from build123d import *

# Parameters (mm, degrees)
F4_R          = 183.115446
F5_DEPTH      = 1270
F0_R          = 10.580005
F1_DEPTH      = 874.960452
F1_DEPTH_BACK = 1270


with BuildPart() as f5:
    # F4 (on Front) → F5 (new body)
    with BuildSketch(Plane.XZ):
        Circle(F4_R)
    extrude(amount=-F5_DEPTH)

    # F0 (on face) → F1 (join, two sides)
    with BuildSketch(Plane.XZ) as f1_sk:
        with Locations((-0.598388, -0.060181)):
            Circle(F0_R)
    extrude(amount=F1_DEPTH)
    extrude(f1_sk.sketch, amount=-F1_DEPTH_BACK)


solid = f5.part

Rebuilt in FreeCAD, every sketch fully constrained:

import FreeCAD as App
import Part
import Sketcher

V = App.Vector
Q = App.Units.Quantity

doc = App.newDocument("Part")
body = doc.addObject("PartDesign::Body", "Body")

sketch1 = body.newObject("Sketcher::SketchObject", "Sketch")
sketch1.AttachmentSupport = (doc.getObject("XZ_Plane"), [""])
sketch1.MapMode = "FlatFace"
sketch1.addGeometry(Part.Circle(V(0, 0, 0), V(0, 0, 1), 183), False)
sketch1.addConstraint([
    Sketcher.Constraint("Coincident", 0, 3, -1, 1),
    Sketcher.Constraint("Diameter", 0, 366.230892),
])
pad1 = body.newObject("PartDesign::Pad", "Pad")
pad1.Profile = sketch1
pad1.Length = Q("50 in")
pad1.Reversed = True

sketch2 = body.newObject("Sketcher::SketchObject", "Sketch001")
sketch2.AttachmentSupport = (doc.getObject("XZ_Plane"), [""])
sketch2.MapMode = "FlatFace"
sketch2.addGeometry(Part.Circle(V(-1, 0, 0), V(0, 0, 1), 11), False)
sketch2.addConstraint([
    Sketcher.Constraint("Diameter", 0, 21.16001),
    Sketcher.Constraint("DistanceX", 0, 3, -1, 1, 0.598388),
    Sketcher.Constraint("DistanceY", 0, 3, -1, 1, 0.060181),
])
pad2 = body.newObject("PartDesign::Pad", "Pad001")
pad2.Profile = sketch2
pad2.Type = "TwoLengths"
pad2.Length = 874.960452
pad2.Length2 = Q("50 in")

doc.recompute()
